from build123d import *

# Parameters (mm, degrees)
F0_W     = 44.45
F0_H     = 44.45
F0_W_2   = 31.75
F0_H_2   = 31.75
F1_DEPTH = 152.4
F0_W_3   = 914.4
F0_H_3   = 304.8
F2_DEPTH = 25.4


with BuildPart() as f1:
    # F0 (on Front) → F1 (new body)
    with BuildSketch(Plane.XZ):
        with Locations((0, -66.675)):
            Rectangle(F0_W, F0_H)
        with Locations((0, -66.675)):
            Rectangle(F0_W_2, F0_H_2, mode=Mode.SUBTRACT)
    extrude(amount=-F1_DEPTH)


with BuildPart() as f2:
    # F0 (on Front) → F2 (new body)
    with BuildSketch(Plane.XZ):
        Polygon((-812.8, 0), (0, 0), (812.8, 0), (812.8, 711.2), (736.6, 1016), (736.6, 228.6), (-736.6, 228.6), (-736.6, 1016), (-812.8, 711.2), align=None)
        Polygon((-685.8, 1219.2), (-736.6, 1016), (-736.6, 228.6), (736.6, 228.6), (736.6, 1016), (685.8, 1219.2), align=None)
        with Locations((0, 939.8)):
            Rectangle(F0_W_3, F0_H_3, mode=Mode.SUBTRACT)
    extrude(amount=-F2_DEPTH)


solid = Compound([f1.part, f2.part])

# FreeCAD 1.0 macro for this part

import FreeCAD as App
import Part
import Sketcher
from FreeCAD import Vector
Q = App.Units.Quantity

doc = App.newDocument("Part")
body = doc.addObject("PartDesign::Body", "Body")

# Sketch on XZ plane
sketch1 = doc.addObject("Sketcher::SketchObject", "Sketch")
body.addObject(sketch1)
sketch1.AttachmentSupport = (doc.XZ_Plane, [""])
sketch1.MapMode = "FlatFace"
sketch1.addGeometry([
    Part.LineSegment(Vector(-22.225, -44.45, 0), Vector(-22.225, -88.9, 0)),  # 0
    Part.LineSegment(Vector(-22.225, -88.9, 0), Vector(22.225, -88.9, 0)),  # 1
    Part.LineSegment(Vector(22.225, -88.9, 0), Vector(22.225, -44.45, 0)),  # 2
    Part.LineSegment(Vector(22.225, -44.45, 0), Vector(-22.225, -44.45, 0)),  # 3
    Part.LineSegment(Vector(15.875, -82.55, 0), Vector(-15.875, -82.55, 0)),  # 4
    Part.LineSegment(Vector(-15.875, -82.55, 0), Vector(-15.875, -50.8, 0)),  # 5
    Part.LineSegment(Vector(-15.875, -50.8, 0), Vector(15.875, -50.8, 0)),  # 6
    Part.LineSegment(Vector(15.875, -50.8, 0), Vector(15.875, -82.55, 0)),  # 7
], False)
sketch1.addConstraint([
    Sketcher.Constraint("Coincident", 0, 2, 1, 1),
    Sketcher.Constraint("Coincident", 1, 2, 2, 1),
    Sketcher.Constraint("Coincident", 2, 2, 3, 1),
    Sketcher.Constraint("Coincident", 3, 2, 0, 1),
    Sketcher.Constraint("Coincident", 4, 2, 5, 1),
    Sketcher.Constraint("Coincident", 5, 2, 6, 1),
    Sketcher.Constraint("Coincident", 6, 2, 7, 1),
    Sketcher.Constraint("Coincident", 7, 2, 4, 1),
    Sketcher.Constraint("Vertical", 0),
    Sketcher.Constraint("Horizontal", 1),
    Sketcher.Constraint("Vertical", 2),
    Sketcher.Constraint("Horizontal", 3),
    Sketcher.Constraint("Horizontal", 4),
    Sketcher.Constraint("Vertical", 5),
    Sketcher.Constraint("Horizontal", 6),
    Sketcher.Constraint("Vertical", 7),
    Sketcher.Constraint("Equal", 3, 0),
    Sketcher.Constraint("Equal", 6, 5),
    Sketcher.Constraint("DistanceY", 5, 2, -1, 1, Q("2 in")),
    Sketcher.Constraint("DistanceX", 1, 1, 1, 2, Q("1.75 in")),
    Sketcher.Constraint("DistanceX", 4, 2, 4, 1, Q("1.25 in")),
    Sketcher.Constraint("DistanceY", 0, 2, -1, 1, Q("3.5 in")),
    Sketcher.Constraint("DistanceX", 4, 2, 1, 2, Q("1.5 in")),
    Sketcher.Constraint("DistanceX", 0, 2, -1, 1, Q("0.875 in")),
])
pad1 = doc.addObject("PartDesign::Pad", "Pad")
body.addObject(pad1)
pad1.Profile = sketch1
pad1.Length = Q("6 in")
pad1.Reversed = True
body2 = doc.addObject("PartDesign::Body", "Body001")

# Sketch on XZ plane
sketch2 = doc.addObject("Sketcher::SketchObject", "Sketch001")
body2.addObject(sketch2)
sketch2.AttachmentSupport = (doc.getObject("XZ_Plane001"), [""])
sketch2.MapMode = "FlatFace"
sketch2.addGeometry([
    Part.LineSegment(Vector(-812.8, 0, 0), Vector(812.8, 0, 0)),  # 0
    Part.LineSegment(Vector(812.8, 0, 0), Vector(812.8, 711.2, 0)),  # 1
    Part.LineSegment(Vector(812.8, 711.2, 0), Vector(685.8, 1219.2, 0)),  # 2
    Part.LineSegment(Vector(685.8, 1219.2, 0), Vector(-685.8, 1219.2, 0)),  # 3
    Part.LineSegment(Vector(-685.8, 1219.2, 0), Vector(-812.8, 711.2, 0)),  # 4
    Part.LineSegment(Vector(-812.8, 711.2, 0), Vector(-812.8, 0, 0)),  # 5
    Part.LineSegment(Vector(457.2, 787.4, 0), Vector(-457.2, 787.4, 0)),  # 6
    Part.LineSegment(Vector(-457.2, 787.4, 0), Vector(-457.2, 1092.2, 0)),  # 7
    Part.LineSegment(Vector(-457.2, 1092.2, 0), Vector(457.2, 1092.2, 0)),  # 8
    Part.LineSegment(Vector(457.2, 1092.2, 0), Vector(457.2, 787.4, 0)),  # 9
], False)
sketch2.addConstraint([
    Sketcher.Constraint("Coincident", 0, 2, 1, 1),
    Sketcher.Constraint("Coincident", 1, 2, 2, 1),
    Sketcher.Constraint("Coincident", 2, 2, 3, 1),
    Sketcher.Constraint("Coincident", 3, 2, 4, 1),
    Sketcher.Constraint("Coincident", 4, 2, 5, 1),
    Sketcher.Constraint("Coincident", 5, 2, 0, 1),
    Sketcher.Constraint("Coincident", 6, 2, 7, 1),
    Sketcher.Constraint("Coincident", 7, 2, 8, 1),
    Sketcher.Constraint("Coincident", 8, 2, 9, 1),
    Sketcher.Constraint("Coincident", 9, 2, 6, 1),
    Sketcher.Constraint("Horizontal", 0),
    Sketcher.Constraint("Vertical", 1),
    Sketcher.Constraint("Horizontal", 3),
    Sketcher.Constraint("Vertical", 5),
    Sketcher.Constraint("Horizontal", 6),
    Sketcher.Constraint("Vertical", 7),
    Sketcher.Constraint("Horizontal", 8),
    Sketcher.Constraint("Vertical", 9),
    Sketcher.Constraint("Symmetric", 0, 2, 5, 2, -1, 1),
    Sketcher.Constraint("Horizontal", 1, 2, 4, 2),
    Sketcher.Constraint("Equal", 2, 4),
    Sketcher.Constraint("DistanceX", 0, 1, 0, 2, Q("64 in")),
    Sketcher.Constraint("DistanceX", 3, 2, 3, 1, Q("54 in")),
    Sketcher.Constraint("DistanceX", 6, 2, 6, 1, Q("36 in")),
    Sketcher.Constraint("DistanceY", 1, 1, 1, 2, Q("28 in")),
    Sketcher.Constraint("DistanceY", 7, 1, 7, 2, Q("12 in")),
    Sketcher.Constraint("DistanceY", -1, 1, 2, 2, Q("48 in")),
    Sketcher.Constraint("DistanceX", 6, 2, -1, 1, Q("18 in")),
    Sketcher.Constraint("DistanceY", -1, 1, 6, 2, Q("31 in")),
])
pad2 = doc.addObject("PartDesign::Pad", "Pad001")
body2.addObject(pad2)
pad2.Profile = sketch2
pad2.Length = Q("1 in")
pad2.Reversed = True

doc.recompute()
